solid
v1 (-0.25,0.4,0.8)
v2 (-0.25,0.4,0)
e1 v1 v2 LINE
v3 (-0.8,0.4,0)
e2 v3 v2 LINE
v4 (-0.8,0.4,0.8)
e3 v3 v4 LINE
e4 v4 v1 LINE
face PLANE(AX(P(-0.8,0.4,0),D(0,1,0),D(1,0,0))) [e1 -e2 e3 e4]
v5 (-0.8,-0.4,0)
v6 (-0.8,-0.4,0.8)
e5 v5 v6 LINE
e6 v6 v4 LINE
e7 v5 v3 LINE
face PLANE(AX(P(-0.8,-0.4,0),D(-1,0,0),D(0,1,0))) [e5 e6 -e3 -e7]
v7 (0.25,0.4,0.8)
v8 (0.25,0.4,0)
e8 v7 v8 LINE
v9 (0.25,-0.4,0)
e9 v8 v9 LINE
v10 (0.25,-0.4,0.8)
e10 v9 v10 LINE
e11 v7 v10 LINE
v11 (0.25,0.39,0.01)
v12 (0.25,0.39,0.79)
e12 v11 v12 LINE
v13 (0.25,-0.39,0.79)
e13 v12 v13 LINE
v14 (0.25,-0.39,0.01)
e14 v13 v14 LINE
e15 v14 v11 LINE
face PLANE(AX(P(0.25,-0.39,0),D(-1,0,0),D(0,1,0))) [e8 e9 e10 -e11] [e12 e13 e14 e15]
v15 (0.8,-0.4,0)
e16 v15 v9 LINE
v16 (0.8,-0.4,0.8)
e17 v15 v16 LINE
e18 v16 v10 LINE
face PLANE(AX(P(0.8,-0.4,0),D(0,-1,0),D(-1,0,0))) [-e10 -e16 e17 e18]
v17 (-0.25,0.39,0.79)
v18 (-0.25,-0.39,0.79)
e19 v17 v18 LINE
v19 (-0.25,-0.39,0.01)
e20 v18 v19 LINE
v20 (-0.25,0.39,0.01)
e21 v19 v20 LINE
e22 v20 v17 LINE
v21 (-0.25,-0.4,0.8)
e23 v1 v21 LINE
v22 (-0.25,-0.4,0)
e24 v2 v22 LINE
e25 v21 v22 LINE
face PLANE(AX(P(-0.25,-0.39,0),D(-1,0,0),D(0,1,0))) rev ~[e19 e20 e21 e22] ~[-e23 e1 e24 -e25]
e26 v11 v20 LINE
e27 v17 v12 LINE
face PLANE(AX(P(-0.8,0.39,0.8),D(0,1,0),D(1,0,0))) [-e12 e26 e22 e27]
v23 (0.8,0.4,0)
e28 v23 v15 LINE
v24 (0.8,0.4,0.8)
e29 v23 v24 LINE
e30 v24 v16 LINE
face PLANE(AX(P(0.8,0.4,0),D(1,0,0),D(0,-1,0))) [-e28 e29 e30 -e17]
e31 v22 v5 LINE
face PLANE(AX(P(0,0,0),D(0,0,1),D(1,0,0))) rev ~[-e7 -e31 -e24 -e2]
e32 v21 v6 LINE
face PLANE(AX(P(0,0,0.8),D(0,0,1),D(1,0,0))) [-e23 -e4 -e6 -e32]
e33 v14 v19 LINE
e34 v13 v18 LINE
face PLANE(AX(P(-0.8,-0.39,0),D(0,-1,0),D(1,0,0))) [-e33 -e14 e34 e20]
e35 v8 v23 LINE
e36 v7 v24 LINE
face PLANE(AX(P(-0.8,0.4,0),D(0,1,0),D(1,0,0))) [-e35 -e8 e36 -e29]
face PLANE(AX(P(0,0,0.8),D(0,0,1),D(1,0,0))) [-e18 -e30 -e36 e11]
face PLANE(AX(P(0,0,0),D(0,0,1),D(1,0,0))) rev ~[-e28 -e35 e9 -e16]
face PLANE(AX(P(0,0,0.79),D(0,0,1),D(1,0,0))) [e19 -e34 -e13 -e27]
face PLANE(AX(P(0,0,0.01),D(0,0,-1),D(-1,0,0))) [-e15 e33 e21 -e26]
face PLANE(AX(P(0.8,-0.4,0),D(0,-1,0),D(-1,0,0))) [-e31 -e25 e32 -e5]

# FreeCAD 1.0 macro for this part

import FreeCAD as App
import Part
import Sketcher
from FreeCAD import Vector
Q = App.Units.Quantity


def add_polygon(sketch, points):
    """Adds a closed chain of lines whose ends are joined by coincident constraints."""
    first, n = sketch.GeometryCount, len(points)
    for a, b in zip(points, points[1:] + points[:1]):
        sketch.addGeometry(Part.LineSegment(App.Vector(*a, 0), App.Vector(*b, 0)), False)
    for i in range(n):
        sketch.addConstraint(Sketcher.Constraint("Coincident", first + i, 2, first + (i + 1) % n, 1))

doc = App.newDocument("Part")
body = doc.addObject("PartDesign::Body", "Body")

# Sketch on XY plane
sketch1 = doc.addObject("Sketcher::SketchObject", "Sketch")
body.addObject(sketch1)
sketch1.AttachmentSupport = (doc.XY_Plane, [""])
sketch1.MapMode = "FlatFace"
add_polygon(sketch1, [(0.8, 0.4), (-0.8, 0.4), (-0.8, -0.4), (0.8, -0.4)])  # lines 0-3
sketch1.addConstraint(Sketcher.Constraint("Horizontal", 0))
sketch1.addConstraint(Sketcher.Constraint("Vertical", 1))
sketch1.addConstraint(Sketcher.Constraint("Horizontal", 2))
sketch1.addConstraint(Sketcher.Constraint("Vertical", 3))
sketch1.addConstraint(Sketcher.Constraint("Symmetric", 0, 2, 2, 2, -1, 1))
sketch1.addConstraint(Sketcher.Constraint("DistanceX", 0, 2, 0, 1, Q("1.6 mm")))
sketch1.addConstraint(Sketcher.Constraint("DistanceY", 1, 2, 1, 1, Q("0.8 mm")))
pad1 = doc.addObject("PartDesign::Pad", "Pad")
body.addObject(pad1)
pad1.Profile = sketch1
pad1.Length = 0.8

# Sketch on XY plane
sketch2 = doc.addObject("Sketcher::SketchObject", "Sketch001")
body.addObject(sketch2)
sketch2.AttachmentSupport = (doc.XY_Plane, [""])
sketch2.MapMode = "FlatFace"
sketch2.AttachmentOffset = App.Placement(Vector(0, 0, 0.8), App.Rotation())
add_polygon(sketch2, [(0.2, -0.4), (0.2, 0.4), (-0.2, 0.4), (-0.2, -0.4)])  # lines 0-3
sketch2.addConstraint(Sketcher.Constraint("Vertical", 0))
sketch2.addConstraint(Sketcher.Constraint("Horizontal", 1))
sketch2.addConstraint(Sketcher.Constraint("Vertical", 2))
sketch2.addConstraint(Sketcher.Constraint("Horizontal", 3))
sketch2.addConstraint(Sketcher.Constraint("Symmetric", 0, 2, 2, 2, -1, 1))
sketch2.addConstraint(Sketcher.Constraint("DistanceX", 1, 2, 1, 1, Q("0.5 mm")))
sketch2.addConstraint(Sketcher.Constraint("DistanceY", 0, 1, 0, 2, Q("0.8 mm")))
pocket1 = doc.addObject("PartDesign::Pocket", "Pocket")
body.addObject(pocket1)
pocket1.Profile = sketch2
pocket1.Length = 0.01

# Sketch on XZ plane
sketch3 = doc.addObject("Sketcher::SketchObject", "Sketch002")
body.addObject(sketch3)
sketch3.AttachmentSupport = (doc.XZ_Plane, [""])
sketch3.MapMode = "FlatFace"
sketch3.AttachmentOffset = App.Placement(Vector(0, 0, 0.4), App.Rotation())
add_polygon(sketch3, [(-0.2, 0), (0.2, 0), (0.2, 0.8), (-0.2, 0.8)])  # lines 0-3
sketch3.addConstraint(Sketcher.Constraint("Horizontal", 0))
sketch3.addConstraint(Sketcher.Constraint("Vertical", 1))
sketch3.addConstraint(Sketcher.Constraint("Horizontal", 2))
sketch3.addConstraint(Sketcher.Constraint("Vertical", 3))
sketch3.addConstraint(Sketcher.Constraint("Symmetric", 0, 2, 3, 2, -1, 1))
sketch3.addConstraint(Sketcher.Constraint("DistanceX", 0, 1, 0, 2, Q("0.5 mm")))
sketch3.addConstraint(Sketcher.Constraint("DistanceY", 1, 1, 1, 2, Q("0.79 mm")))
pocket2 = doc.addObject("PartDesign::Pocket", "Pocket001")
body.addObject(pocket2)
pocket2.Profile = sketch3
pocket2.Length = 0.01

# Sketch on XY plane
sketch4 = doc.addObject("Sketcher::SketchObject", "Sketch003")
body.addObject(sketch4)
sketch4.AttachmentSupport = (doc.XY_Plane, [""])
sketch4.MapMode = "FlatFace"
add_polygon(sketch4, [(0.2, 0.4), (0.2, -0.4), (-0.2, -0.4), (-0.2, 0.4)])  # lines 0-3
sketch4.addConstraint(Sketcher.Constraint("Vertical", 0))
sketch4.addConstraint(Sketcher.Constraint("Horizontal", 1))
sketch4.addConstraint(Sketcher.Constraint("Vertical", 2))
sketch4.addConstraint(Sketcher.Constraint("Horizontal", 3))
sketch4.addConstraint(Sketcher.Constraint("DistanceX", 1, 2, 1, 1, Q("0.5 mm")))
sketch4.addConstraint(Sketcher.Constraint("DistanceY", 0, 2, 0, 1, Q("0.79 mm")))
sketch4.addConstraint(Sketcher.Constraint("DistanceY", -1, 1, 2, 2, Q("0.4 mm")))
sketch4.addConstraint(Sketcher.Constraint("DistanceX", -1, 1, 0, 2, Q("0.25 mm")))
pocket3 = doc.addObject("PartDesign::Pocket", "Pocket002")
body.addObject(pocket3)
pocket3.Profile = sketch4
pocket3.Length = 0.01
pocket3.Reversed = True

# Sketch on XZ plane
sketch5 = doc.addObject("Sketcher::SketchObject", "Sketch004")
body.addObject(sketch5)
sketch5.AttachmentSupport = (doc.XZ_Plane, [""])
sketch5.MapMode = "FlatFace"
sketch5.AttachmentOffset = App.Placement(Vector(0, 0, -0.4), App.Rotation())
add_polygon(sketch5, [(-0.2, 0), (-0.2, 0.8), (0.2, 0.8), (0.2, 0)])  # lines 0-3
sketch5.addConstraint(Sketcher.Constraint("Vertical", 0))
sketch5.addConstraint(Sketcher.Constraint("Horizontal", 1))
sketch5.addConstraint(Sketcher.Constraint("Vertical", 2))
sketch5.addConstraint(Sketcher.Constraint("Horizontal", 3))
sketch5.addConstraint(Sketcher.Constraint("DistanceX", 1, 1, 1, 2, Q("0.5 mm")))
sketch5.addConstraint(Sketcher.Constraint("DistanceY", 0, 1, 0, 2, Q("0.78 mm")))
sketch5.addConstraint(Sketcher.Constraint("DistanceX", 0, 2, -1, 1, Q("0.25 mm")))
sketch5.addConstraint(Sketcher.Constraint("DistanceY", -1, 1, 0, 2, Q("0.79 mm")))
pocket4 = doc.addObject("PartDesign::Pocket", "Pocket003")
body.addObject(pocket4)
pocket4.Profile = sketch5
pocket4.Length = 0.01
pocket4.Reversed = True

doc.recompute()
